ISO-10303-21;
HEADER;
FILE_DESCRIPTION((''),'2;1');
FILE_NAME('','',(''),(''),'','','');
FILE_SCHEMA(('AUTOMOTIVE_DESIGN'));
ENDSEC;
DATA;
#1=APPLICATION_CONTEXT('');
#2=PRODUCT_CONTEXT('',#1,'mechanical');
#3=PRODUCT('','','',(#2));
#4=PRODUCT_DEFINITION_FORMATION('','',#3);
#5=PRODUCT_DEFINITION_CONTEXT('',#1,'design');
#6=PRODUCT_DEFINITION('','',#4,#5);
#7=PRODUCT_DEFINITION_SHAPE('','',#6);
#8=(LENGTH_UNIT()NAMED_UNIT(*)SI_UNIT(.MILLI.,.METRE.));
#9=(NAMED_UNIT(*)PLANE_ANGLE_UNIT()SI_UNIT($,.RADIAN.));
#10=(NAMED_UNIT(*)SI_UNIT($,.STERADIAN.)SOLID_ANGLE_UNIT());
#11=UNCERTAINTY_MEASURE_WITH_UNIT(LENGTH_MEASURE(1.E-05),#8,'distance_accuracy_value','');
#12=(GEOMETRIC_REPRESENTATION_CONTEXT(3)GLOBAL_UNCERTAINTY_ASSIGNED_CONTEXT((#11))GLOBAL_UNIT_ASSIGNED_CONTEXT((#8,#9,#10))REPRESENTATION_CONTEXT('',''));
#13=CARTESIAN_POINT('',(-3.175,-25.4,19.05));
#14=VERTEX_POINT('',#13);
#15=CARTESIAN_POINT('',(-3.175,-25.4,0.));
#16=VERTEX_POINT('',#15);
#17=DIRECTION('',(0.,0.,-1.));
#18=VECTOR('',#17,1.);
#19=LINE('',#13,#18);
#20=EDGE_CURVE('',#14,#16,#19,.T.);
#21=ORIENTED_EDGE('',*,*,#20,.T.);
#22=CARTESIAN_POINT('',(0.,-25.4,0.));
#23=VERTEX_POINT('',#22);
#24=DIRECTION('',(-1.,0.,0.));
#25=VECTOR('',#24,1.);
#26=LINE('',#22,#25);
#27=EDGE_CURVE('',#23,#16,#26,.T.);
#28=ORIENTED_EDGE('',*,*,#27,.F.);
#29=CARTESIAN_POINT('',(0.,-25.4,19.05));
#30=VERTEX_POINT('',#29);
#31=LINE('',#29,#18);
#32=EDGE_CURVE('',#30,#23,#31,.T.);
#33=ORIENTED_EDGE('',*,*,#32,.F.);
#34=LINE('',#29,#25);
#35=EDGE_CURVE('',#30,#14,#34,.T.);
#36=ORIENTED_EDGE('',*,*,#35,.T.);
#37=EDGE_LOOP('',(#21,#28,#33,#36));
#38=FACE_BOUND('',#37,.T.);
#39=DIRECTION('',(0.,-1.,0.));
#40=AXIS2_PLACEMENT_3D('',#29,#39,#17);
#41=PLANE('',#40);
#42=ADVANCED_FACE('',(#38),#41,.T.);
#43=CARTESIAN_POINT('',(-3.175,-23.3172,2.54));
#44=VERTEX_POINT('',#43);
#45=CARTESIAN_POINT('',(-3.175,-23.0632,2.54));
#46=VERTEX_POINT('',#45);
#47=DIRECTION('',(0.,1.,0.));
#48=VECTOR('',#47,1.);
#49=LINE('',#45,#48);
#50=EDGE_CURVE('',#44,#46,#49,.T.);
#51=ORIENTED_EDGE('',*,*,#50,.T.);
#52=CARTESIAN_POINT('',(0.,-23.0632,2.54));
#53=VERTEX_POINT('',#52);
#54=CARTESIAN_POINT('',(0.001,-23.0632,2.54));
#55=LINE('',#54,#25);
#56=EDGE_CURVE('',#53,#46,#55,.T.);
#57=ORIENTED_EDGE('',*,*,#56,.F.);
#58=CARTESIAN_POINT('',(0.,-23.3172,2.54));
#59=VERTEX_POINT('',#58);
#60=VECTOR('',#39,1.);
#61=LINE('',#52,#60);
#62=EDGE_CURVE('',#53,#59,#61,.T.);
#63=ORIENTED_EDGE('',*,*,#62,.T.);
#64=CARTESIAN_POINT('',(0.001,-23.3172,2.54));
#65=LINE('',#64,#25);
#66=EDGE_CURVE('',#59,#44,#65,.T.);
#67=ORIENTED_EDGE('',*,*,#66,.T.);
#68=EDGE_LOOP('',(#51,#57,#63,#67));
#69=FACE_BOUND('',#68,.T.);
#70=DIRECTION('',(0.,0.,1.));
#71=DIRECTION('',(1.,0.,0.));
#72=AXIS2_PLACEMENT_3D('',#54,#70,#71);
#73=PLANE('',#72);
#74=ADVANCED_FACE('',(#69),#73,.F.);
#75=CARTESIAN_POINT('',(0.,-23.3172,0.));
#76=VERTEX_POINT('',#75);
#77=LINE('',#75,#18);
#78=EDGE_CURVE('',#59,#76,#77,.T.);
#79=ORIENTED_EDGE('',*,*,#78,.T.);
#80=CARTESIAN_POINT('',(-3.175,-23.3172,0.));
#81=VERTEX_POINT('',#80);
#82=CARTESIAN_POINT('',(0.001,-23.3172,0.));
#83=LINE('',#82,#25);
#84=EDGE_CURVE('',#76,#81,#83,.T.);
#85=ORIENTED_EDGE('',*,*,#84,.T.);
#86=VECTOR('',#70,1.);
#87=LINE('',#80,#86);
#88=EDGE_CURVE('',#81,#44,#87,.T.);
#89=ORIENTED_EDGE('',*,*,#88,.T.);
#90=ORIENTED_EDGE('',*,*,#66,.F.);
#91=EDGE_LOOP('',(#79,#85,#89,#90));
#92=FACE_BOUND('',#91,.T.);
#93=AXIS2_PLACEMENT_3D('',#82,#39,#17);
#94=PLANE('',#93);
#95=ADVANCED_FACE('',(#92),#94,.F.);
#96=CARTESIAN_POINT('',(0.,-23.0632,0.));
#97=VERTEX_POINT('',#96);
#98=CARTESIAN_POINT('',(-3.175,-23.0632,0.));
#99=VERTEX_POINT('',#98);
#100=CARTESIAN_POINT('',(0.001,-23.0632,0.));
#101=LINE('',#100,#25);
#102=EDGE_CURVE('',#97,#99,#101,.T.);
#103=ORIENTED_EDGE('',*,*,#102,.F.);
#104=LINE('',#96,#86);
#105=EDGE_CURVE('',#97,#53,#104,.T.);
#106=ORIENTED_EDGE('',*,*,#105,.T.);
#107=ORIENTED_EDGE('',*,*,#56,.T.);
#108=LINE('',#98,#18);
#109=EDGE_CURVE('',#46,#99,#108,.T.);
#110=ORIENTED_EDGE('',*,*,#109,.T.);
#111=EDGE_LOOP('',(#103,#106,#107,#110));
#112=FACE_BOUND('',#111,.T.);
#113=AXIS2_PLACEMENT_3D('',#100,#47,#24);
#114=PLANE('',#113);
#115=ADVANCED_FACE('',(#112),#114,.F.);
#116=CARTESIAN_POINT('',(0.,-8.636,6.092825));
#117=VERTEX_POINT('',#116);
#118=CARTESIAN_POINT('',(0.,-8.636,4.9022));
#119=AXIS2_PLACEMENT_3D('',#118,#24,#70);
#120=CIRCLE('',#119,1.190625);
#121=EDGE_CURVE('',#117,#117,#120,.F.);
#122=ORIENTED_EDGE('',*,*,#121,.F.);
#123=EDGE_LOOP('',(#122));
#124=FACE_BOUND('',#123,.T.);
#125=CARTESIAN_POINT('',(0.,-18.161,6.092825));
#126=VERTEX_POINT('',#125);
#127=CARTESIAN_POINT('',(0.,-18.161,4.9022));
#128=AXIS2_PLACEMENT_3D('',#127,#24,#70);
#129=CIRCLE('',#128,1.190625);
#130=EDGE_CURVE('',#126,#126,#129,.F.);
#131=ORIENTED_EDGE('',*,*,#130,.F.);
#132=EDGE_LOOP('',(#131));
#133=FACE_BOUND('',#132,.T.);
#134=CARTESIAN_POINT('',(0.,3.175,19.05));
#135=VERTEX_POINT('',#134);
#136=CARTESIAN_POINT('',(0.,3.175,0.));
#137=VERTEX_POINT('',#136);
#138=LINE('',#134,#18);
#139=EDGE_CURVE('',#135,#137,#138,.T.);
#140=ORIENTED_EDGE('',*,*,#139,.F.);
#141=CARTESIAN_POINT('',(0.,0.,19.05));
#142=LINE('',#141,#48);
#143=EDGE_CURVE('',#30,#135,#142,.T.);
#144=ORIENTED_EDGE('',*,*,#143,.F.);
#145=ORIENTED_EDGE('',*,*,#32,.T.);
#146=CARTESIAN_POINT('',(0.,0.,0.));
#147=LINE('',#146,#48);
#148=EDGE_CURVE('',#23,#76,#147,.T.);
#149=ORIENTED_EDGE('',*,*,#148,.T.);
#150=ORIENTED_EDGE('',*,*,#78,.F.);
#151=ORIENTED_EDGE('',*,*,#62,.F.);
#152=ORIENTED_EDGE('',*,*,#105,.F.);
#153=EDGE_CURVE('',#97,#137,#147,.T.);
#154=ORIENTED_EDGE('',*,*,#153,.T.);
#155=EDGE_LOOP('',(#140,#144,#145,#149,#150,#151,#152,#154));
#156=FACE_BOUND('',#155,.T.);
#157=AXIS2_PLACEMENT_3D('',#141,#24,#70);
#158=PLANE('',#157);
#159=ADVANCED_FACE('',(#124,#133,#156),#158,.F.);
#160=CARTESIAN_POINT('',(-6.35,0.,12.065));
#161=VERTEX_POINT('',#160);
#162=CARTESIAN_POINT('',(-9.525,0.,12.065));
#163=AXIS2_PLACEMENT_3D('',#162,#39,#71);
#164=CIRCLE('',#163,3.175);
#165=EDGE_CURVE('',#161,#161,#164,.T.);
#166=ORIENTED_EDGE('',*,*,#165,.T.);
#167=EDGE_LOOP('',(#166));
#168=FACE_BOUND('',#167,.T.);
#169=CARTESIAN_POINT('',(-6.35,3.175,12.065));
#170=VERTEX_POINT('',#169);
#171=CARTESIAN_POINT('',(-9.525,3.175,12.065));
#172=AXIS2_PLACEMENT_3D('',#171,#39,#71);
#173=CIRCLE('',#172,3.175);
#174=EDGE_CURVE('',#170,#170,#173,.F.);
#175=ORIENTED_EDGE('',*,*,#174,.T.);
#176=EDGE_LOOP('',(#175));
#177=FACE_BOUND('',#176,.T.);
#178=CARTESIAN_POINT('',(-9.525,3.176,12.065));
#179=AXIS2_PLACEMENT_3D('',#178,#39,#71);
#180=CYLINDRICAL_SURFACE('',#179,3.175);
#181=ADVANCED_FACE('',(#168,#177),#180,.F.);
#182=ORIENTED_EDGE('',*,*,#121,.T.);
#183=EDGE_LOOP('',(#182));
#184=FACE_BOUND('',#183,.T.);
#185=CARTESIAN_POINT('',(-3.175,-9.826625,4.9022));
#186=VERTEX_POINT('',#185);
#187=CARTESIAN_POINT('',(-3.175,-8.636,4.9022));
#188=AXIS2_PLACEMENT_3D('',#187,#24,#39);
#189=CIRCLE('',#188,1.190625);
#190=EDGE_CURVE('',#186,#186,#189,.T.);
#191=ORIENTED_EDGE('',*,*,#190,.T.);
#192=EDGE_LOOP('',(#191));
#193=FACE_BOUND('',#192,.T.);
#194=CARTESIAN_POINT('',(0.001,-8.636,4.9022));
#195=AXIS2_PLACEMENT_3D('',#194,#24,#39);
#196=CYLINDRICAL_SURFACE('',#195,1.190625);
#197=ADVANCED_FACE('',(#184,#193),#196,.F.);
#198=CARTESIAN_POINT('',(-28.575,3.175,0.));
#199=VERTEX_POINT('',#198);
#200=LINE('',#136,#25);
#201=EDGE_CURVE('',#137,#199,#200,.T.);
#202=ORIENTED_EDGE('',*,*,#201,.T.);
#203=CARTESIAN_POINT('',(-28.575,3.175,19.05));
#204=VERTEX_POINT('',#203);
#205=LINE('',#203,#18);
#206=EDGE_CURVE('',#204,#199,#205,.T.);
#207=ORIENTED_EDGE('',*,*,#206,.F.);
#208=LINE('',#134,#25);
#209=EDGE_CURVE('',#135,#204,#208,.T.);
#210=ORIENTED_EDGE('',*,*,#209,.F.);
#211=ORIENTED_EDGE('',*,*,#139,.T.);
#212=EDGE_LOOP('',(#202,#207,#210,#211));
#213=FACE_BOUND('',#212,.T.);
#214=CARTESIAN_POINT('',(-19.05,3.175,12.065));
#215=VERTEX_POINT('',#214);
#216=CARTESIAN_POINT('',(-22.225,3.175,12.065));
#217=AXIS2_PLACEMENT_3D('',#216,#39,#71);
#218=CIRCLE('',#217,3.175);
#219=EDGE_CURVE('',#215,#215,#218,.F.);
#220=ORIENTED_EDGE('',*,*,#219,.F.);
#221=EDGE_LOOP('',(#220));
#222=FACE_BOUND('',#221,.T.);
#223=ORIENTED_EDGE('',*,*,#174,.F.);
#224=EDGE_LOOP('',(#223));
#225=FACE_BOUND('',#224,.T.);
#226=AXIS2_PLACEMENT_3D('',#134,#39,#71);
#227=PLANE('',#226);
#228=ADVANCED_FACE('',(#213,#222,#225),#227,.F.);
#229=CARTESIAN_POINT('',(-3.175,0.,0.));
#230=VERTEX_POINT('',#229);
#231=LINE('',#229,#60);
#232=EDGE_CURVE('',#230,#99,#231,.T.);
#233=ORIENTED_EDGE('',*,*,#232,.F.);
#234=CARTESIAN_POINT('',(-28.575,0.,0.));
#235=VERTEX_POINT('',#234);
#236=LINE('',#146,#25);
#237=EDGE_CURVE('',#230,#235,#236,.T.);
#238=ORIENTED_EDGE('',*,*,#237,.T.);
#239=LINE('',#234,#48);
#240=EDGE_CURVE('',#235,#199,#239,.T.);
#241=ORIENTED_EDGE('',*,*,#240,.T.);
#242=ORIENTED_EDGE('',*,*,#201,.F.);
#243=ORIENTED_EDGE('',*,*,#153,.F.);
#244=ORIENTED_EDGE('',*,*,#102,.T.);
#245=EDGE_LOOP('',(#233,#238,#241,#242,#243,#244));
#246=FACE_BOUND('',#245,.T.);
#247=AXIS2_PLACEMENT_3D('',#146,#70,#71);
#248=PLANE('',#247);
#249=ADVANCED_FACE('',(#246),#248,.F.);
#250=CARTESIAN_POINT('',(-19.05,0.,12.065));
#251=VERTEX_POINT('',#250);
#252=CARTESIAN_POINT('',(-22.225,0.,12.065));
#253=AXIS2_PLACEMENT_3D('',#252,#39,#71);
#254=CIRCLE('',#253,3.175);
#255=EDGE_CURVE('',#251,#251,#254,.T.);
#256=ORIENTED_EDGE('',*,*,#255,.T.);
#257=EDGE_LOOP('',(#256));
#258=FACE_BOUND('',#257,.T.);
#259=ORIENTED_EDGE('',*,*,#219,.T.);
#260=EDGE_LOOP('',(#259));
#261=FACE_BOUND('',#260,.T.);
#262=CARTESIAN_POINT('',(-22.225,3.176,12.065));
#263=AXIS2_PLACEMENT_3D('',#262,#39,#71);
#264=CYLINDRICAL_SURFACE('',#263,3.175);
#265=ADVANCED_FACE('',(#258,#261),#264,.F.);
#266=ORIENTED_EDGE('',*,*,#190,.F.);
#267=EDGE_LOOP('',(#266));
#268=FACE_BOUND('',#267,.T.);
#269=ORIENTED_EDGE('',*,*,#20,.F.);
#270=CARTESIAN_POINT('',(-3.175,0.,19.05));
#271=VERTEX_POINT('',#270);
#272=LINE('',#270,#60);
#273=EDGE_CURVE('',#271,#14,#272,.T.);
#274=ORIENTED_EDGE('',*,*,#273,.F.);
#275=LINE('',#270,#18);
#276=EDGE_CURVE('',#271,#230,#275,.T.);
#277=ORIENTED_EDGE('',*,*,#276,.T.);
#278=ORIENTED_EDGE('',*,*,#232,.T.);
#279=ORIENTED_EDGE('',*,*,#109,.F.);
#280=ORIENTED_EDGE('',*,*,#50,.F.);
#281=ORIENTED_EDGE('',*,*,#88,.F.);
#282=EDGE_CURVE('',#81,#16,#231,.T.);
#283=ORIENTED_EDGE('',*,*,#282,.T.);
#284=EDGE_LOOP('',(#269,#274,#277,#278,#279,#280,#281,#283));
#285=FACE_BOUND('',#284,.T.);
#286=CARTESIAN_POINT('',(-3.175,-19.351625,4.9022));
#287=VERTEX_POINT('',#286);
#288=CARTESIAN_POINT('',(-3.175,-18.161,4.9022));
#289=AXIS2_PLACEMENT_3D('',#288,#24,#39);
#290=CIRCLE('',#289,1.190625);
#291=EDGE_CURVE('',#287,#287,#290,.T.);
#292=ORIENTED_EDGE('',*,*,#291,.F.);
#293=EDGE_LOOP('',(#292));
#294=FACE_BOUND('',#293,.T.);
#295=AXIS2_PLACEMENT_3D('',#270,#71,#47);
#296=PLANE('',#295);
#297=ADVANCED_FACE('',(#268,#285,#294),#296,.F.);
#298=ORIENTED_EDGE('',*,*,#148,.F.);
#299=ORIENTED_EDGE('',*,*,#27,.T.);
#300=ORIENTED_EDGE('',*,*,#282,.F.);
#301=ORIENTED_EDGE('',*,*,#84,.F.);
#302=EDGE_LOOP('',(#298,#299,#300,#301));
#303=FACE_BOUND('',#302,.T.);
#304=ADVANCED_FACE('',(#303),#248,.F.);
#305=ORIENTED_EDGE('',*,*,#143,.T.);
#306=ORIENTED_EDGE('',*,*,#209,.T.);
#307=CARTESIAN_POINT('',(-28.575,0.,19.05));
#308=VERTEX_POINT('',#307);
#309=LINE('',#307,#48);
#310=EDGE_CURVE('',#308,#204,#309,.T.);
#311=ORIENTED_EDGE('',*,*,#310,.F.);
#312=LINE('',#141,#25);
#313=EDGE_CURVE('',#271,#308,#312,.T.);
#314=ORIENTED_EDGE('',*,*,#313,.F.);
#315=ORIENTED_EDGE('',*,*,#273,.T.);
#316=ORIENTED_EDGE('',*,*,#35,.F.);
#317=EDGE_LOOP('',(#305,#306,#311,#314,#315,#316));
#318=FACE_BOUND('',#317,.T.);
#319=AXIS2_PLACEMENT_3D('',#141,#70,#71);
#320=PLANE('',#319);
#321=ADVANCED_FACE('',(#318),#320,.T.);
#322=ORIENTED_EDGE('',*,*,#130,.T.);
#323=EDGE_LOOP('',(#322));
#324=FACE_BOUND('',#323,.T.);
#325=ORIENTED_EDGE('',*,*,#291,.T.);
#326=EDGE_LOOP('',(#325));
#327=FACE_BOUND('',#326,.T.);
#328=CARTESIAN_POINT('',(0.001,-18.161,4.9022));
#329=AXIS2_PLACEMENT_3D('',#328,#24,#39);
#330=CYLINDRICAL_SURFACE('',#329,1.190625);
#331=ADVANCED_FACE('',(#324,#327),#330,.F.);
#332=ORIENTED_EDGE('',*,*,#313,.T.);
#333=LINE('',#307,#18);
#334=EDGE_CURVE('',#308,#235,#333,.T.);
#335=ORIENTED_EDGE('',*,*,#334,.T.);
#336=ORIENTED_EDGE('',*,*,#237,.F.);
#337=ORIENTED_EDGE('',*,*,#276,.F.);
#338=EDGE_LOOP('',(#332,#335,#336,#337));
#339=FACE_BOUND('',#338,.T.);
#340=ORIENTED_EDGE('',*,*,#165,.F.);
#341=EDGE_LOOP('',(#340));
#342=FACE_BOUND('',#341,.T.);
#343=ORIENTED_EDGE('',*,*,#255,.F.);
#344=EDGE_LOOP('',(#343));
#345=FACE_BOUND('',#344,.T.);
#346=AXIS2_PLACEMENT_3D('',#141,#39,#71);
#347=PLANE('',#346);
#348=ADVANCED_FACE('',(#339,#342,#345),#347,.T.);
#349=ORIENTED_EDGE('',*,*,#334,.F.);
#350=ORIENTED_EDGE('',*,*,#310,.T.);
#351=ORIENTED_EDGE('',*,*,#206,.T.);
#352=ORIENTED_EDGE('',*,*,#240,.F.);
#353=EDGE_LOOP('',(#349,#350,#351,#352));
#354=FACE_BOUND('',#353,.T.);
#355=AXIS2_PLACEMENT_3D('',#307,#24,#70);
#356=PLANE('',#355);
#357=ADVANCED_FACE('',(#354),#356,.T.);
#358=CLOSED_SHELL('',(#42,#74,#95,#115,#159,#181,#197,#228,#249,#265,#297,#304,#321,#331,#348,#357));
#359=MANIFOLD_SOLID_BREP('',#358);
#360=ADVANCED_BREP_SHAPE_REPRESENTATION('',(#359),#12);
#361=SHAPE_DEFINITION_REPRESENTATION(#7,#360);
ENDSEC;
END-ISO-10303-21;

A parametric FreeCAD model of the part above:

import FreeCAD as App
import Part
import Sketcher
from FreeCAD import Vector
Q = App.Units.Quantity


def add_polygon(sketch, points):
    """Adds a closed chain of lines whose ends are joined by coincident constraints."""
    first, n = sketch.GeometryCount, len(points)
    for a, b in zip(points, points[1:] + points[:1]):
        sketch.addGeometry(Part.LineSegment(App.Vector(*a, 0), App.Vector(*b, 0)), False)
    for i in range(n):
        sketch.addConstraint(Sketcher.Constraint("Coincident", first + i, 2, first + (i + 1) % n, 1))

doc = App.newDocument("Part")
body = doc.addObject("PartDesign::Body", "Body")

# Sketch on XY plane
sketch1 = body.newObject("Sketcher::SketchObject", "Sketch")
sketch1.AttachmentSupport = (doc.getObject("XY_Plane"), [""])
sketch1.MapMode = "FlatFace"
add_polygon(sketch1, [(-28.575, 3.175), (-28.575, 0), (-3.175, 0), (-3.175, -25.4), (0, -25.4), (0, 3.175)])  # lines 0-5
sketch1.addConstraint([
    Sketcher.Constraint("Vertical", 0),
    Sketcher.Constraint("Horizontal", 1),
    Sketcher.Constraint("Vertical", 2),
    Sketcher.Constraint("Horizontal", 3),
    Sketcher.Constraint("Vertical", 4),
    Sketcher.Constraint("Horizontal", 5),
    Sketcher.Constraint("PointOnObject", 0, 2, -1),
    Sketcher.Constraint("PointOnObject", 3, 2, -2),
    Sketcher.Constraint("Equal", 3, 0),
    Sketcher.Constraint("Equal", 1, 2),
    Sketcher.Constraint("DistanceX", 1, 1, 1, 2, Q("1 in")),
    Sketcher.Constraint("DistanceX", 3, 1, 3, 2, Q("0.125 in")),
])
pad1 = body.newObject("PartDesign::Pad", "Pad")
pad1.Profile = sketch1
pad1.Length = Q("0.75 in")

# Sketch on YZ plane
sketch2 = body.newObject("Sketcher::SketchObject", "Sketch001")
sketch2.AttachmentSupport = (doc.getObject("YZ_Plane"), [""])
sketch2.MapMode = "FlatFace"
sketch2.AttachmentOffset = App.Placement(Vector(0, 0, -0.125 * 25.4), App.Rotation())
sketch2.addGeometry(Part.Circle(Vector(-8.636, 4.9022, 0), Vector(0, 0, 1), 1.190625), False)
sketch2.addConstraint([
    Sketcher.Constraint("Diameter", 0, Q("0.09375 in")),
    Sketcher.Constraint("DistanceX", 0, 3, -1, 1, Q("0.34 in")),
    Sketcher.Constraint("DistanceY", -1, 1, 0, 3, Q("0.193 in")),
])
pocket1 = body.newObject("PartDesign::Pocket", "Pocket")
pocket1.Profile = sketch2
pocket1.Type = "UpToFirst"
pocket1.Reversed = True

# Sketch on YZ plane
sketch3 = body.newObject("Sketcher::SketchObject", "Sketch002")
sketch3.AttachmentSupport = (doc.getObject("YZ_Plane"), [""])
sketch3.MapMode = "FlatFace"
sketch3.AttachmentOffset = App.Placement(Vector(0, 0, -0.125 * 25.4), App.Rotation())
sketch3.addGeometry(Part.Circle(Vector(-18.161, 4.9022, 0), Vector(0, 0, 1), 1.190625), False)
sketch3.addConstraint([
    Sketcher.Constraint("Diameter", 0, Q("0.09375 in")),
    Sketcher.Constraint("DistanceX", 0, 3, -1, 1, Q("0.715 in")),
    Sketcher.Constraint("DistanceY", -1, 1, 0, 3, Q("0.193 in")),
])
pocket2 = body.newObject("PartDesign::Pocket", "Pocket001")
pocket2.Profile = sketch3
pocket2.Type = "UpToFirst"
pocket2.Reversed = True

# Sketch on YZ plane
sketch4 = body.newObject("Sketcher::SketchObject", "Sketch003")
sketch4.AttachmentSupport = (doc.getObject("YZ_Plane"), [""])
sketch4.MapMode = "FlatFace"
sketch4.AttachmentOffset = App.Placement(Vector(0, 0, -0.125 * 25.4), App.Rotation())
add_polygon(sketch4, [(-23.0632, 0), (-23.3172, 0), (-23.3172, 2.54), (-23.0632, 2.54)])  # lines 0-3
sketch4.addConstraint([
    Sketcher.Constraint("Horizontal", 0),
    Sketcher.Constraint("Vertical", 1),
    Sketcher.Constraint("Horizontal", 2),
    Sketcher.Constraint("Vertical", 3),
    Sketcher.Constraint("PointOnObject", 0, 2, -1),
    Sketcher.Constraint("DistanceY", 1, 1, 1, 2, Q("0.1 in")),
    Sketcher.Constraint("DistanceX", 0, 2, 0, 1, Q("0.01 in")),
    Sketcher.Constraint("DistanceX", 0, 2, -1, 1, Q("0.918 in")),
])
pocket3 = body.newObject("PartDesign::Pocket", "Pocket002")
pocket3.Profile = sketch4
pocket3.Type = "UpToFirst"
pocket3.Reversed = True

# Sketch on XZ plane
sketch5 = body.newObject("Sketcher::SketchObject", "Sketch004")
sketch5.AttachmentSupport = (doc.getObject("XZ_Plane"), [""])
sketch5.MapMode = "FlatFace"
sketch5.addGeometry(Part.Circle(Vector(-9.525, 12.065, 0), Vector(0, 0, 1), 3.175), False)
sketch5.addConstraint([
    Sketcher.Constraint("Diameter", 0, Q("0.25 in")),
    Sketcher.Constraint("DistanceX", 0, 3, -1, 1, Q("0.375 in")),
    Sketcher.Constraint("DistanceY", -1, 1, 0, 3, Q("0.475 in")),
])
pocket4 = body.newObject("PartDesign::Pocket", "Pocket003")
pocket4.Profile = sketch5
pocket4.Type = "UpToFirst"

# Sketch on XZ plane
sketch6 = body.newObject("Sketcher::SketchObject", "Sketch005")
sketch6.AttachmentSupport = (doc.getObject("XZ_Plane"), [""])
sketch6.MapMode = "FlatFace"
sketch6.addGeometry(Part.Circle(Vector(-22.225, 12.065, 0), Vector(0, 0, 1), 3.175), False)
sketch6.addConstraint([
    Sketcher.Constraint("Diameter", 0, Q("0.25 in")),
    Sketcher.Constraint("DistanceX", 0, 3, -1, 1, Q("0.875 in")),
    Sketcher.Constraint("DistanceY", -1, 1, 0, 3, Q("0.475 in")),
])
pocket5 = body.newObject("PartDesign::Pocket", "Pocket004")
pocket5.Profile = sketch6
pocket5.Type = "UpToFirst"

doc.recompute()
